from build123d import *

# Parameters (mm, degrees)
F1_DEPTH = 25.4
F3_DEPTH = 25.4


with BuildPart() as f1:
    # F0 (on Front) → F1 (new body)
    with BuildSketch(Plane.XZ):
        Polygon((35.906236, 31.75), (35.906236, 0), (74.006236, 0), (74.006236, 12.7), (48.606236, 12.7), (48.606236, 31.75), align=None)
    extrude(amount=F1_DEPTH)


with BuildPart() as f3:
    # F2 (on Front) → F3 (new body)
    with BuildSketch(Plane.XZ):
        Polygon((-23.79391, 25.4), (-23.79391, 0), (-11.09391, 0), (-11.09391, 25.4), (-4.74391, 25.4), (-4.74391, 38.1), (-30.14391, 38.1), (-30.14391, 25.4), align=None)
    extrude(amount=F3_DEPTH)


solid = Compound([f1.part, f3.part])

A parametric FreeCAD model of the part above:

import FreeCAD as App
import Part
import Sketcher
Q = App.Units.Quantity

doc = App.newDocument("Part")
body = doc.addObject("PartDesign::Body", "Body")

# Sketch on XZ plane
sketch1 = doc.addObject("Sketcher::SketchObject", "Sketch")
body.addObject(sketch1)
sketch1.AttachmentSupport = (doc.XZ_Plane, [""])
sketch1.MapMode = "FlatFace"
sketch1.addGeometry([
    Part.LineSegment(App.Vector(36, 32, 0), App.Vector(36, 0, 0)),  # 0
    Part.LineSegment(App.Vector(36, 0, 0), App.Vector(74, 0, 0)),  # 1
    Part.LineSegment(App.Vector(74, 0, 0), App.Vector(74, 13, 0)),  # 2
    Part.LineSegment(App.Vector(74, 13, 0), App.Vector(49, 13, 0)),  # 3
    Part.LineSegment(App.Vector(49, 13, 0), App.Vector(49, 32, 0)),  # 4
    Part.LineSegment(App.Vector(49, 32, 0), App.Vector(36, 32, 0)),  # 5
], False)
sketch1.addConstraint([
    Sketcher.Constraint("Coincident", 0, 2, 1, 1),
    Sketcher.Constraint("Coincident", 1, 2, 2, 1),
    Sketcher.Constraint("Coincident", 2, 2, 3, 1),
    Sketcher.Constraint("Coincident", 3, 2, 4, 1),
    Sketcher.Constraint("Coincident", 4, 2, 5, 1),
    Sketcher.Constraint("Coincident", 5, 2, 0, 1),
    Sketcher.Constraint("Vertical", 0),
    Sketcher.Constraint("Horizontal", 1),
    Sketcher.Constraint("Vertical", 2),
    Sketcher.Constraint("Horizontal", 3),
    Sketcher.Constraint("Vertical", 4),
    Sketcher.Constraint("Horizontal", 5),
    Sketcher.Constraint("PointOnObject", 0, 2, -1),
    Sketcher.Constraint("Equal", 5, 2),
    Sketcher.Constraint("DistanceX", 3, 2, 3, 1, Q("1 in")),
    Sketcher.Constraint("DistanceX", 1, 1, 1, 2, Q("1.5 in")),
    Sketcher.Constraint("DistanceY", 0, 2, 0, 1, Q("1.25 in")),
    Sketcher.Constraint("DistanceX", -1, 1, 0, 2, 35.906236),
])
pad1 = doc.addObject("PartDesign::Pad", "Pad")
body.addObject(pad1)
pad1.Profile = sketch1
pad1.Length = Q("1 in")
body2 = doc.addObject("PartDesign::Body", "Body001")

# Sketch on XZ plane
sketch2 = doc.addObject("Sketcher::SketchObject", "Sketch001")
body2.addObject(sketch2)
sketch2.AttachmentSupport = (doc.getObject("XZ_Plane001"), [""])
sketch2.MapMode = "FlatFace"
sketch2.addGeometry([
    Part.LineSegment(App.Vector(-24, 25, 0), App.Vector(-24, 0, 0)),  # 0
    Part.LineSegment(App.Vector(-24, 0, 0), App.Vector(-11, 0, 0)),  # 1
    Part.LineSegment(App.Vector(-11, 0, 0), App.Vector(-11, 25, 0)),  # 2
    Part.LineSegment(App.Vector(-11, 25, 0), App.Vector(-5, 25, 0)),  # 3
    Part.LineSegment(App.Vector(-5, 25, 0), App.Vector(-5, 38, 0)),  # 4
    Part.LineSegment(App.Vector(-5, 38, 0), App.Vector(-30, 38, 0)),  # 5
    Part.LineSegment(App.Vector(-30, 38, 0), App.Vector(-30, 25, 0)),  # 6
    Part.LineSegment(App.Vector(-30, 25, 0), App.Vector(-24, 25, 0)),  # 7
], False)
sketch2.addConstraint([
    Sketcher.Constraint("Coincident", 0, 2, 1, 1),
    Sketcher.Constraint("Coincident", 1, 2, 2, 1),
    Sketcher.Constraint("Coincident", 2, 2, 3, 1),
    Sketcher.Constraint("Coincident", 3, 2, 4, 1),
    Sketcher.Constraint("Coincident", 4, 2, 5, 1),
    Sketcher.Constraint("Coincident", 5, 2, 6, 1),
    Sketcher.Constraint("Coincident", 6, 2, 7, 1),
    Sketcher.Constraint("Coincident", 7, 2, 0, 1),
    Sketcher.Constraint("Vertical", 0),
    Sketcher.Constraint("Horizontal", 1),
    Sketcher.Constraint("Vertical", 2),
    Sketcher.Constraint("Horizontal", 3),
    Sketcher.Constraint("Vertical", 4),
    Sketcher.Constraint("Horizontal", 5),
    Sketcher.Constraint("Vertical", 6),
    Sketcher.Constraint("Horizontal", 7),
    Sketcher.Constraint("PointOnObject", 0, 2, -1),
    Sketcher.Constraint("Horizontal", 3, 2, 6, 2),
    Sketcher.Constraint("Equal", 3, 7),
    Sketcher.Constraint("Equal", 5, 0),
    Sketcher.Constraint("Equal", 1, 4),
    Sketcher.Constraint("DistanceX", 5, 2, 5, 1, Q("1 in")),
    Sketcher.Constraint("DistanceX", 1, 1, 1, 2, Q("0.5 in")),
    Sketcher.Constraint("DistanceX", 0, 2, -1, 1, 23.79391),
])
pad2 = doc.addObject("PartDesign::Pad", "Pad001")
body2.addObject(pad2)
pad2.Profile = sketch2
pad2.Length = Q("1 in")

doc.recompute()
